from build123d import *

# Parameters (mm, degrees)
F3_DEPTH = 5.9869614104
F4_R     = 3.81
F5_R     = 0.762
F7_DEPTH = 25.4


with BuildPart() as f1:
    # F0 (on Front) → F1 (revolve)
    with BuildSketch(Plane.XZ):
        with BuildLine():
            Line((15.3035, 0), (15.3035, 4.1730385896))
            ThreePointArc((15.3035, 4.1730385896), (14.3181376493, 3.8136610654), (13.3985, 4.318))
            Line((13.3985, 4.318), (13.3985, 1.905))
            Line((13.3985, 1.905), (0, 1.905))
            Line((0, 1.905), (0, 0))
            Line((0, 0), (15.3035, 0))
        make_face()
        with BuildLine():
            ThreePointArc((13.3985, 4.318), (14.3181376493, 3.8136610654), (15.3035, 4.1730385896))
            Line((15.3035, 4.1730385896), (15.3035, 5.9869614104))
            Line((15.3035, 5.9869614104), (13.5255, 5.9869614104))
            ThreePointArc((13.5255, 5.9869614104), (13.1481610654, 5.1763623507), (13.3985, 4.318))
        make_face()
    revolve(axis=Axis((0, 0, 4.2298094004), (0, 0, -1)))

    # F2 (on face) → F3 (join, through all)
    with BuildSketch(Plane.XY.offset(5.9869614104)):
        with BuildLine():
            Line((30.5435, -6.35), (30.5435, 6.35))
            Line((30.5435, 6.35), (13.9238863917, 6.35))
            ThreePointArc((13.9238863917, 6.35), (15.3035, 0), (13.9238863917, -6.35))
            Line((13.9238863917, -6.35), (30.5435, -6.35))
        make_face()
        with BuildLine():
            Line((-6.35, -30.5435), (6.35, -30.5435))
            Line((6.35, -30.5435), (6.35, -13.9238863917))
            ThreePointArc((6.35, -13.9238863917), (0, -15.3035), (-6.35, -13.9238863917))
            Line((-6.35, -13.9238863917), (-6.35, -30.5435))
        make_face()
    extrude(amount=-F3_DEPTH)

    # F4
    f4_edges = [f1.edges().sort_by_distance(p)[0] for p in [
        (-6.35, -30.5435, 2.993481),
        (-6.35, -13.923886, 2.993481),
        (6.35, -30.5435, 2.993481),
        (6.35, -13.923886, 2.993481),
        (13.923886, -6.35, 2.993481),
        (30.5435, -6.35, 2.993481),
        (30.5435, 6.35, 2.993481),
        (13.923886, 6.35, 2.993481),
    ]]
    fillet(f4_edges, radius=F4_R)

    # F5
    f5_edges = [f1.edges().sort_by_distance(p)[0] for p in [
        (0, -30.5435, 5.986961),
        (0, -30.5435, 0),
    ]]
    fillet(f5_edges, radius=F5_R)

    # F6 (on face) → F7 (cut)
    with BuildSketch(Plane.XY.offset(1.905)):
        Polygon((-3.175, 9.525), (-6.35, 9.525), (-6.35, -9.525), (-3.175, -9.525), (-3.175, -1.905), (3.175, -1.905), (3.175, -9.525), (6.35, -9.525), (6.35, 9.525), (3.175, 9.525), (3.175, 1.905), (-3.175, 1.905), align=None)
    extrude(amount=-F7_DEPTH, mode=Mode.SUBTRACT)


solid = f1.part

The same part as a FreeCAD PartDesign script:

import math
import FreeCAD as App
import Part
import Sketcher
from FreeCAD import Vector
Q = App.Units.Quantity


def edges_at(feature, points):
    """Names of the edges that pass closest to the given points."""
    edges = feature.Shape.Edges
    near = lambda p: min(range(len(edges)), key=lambda i: edges[i].distToShape(Part.Vertex(*p))[0])
    return sorted({f"Edge{near(p) + 1}" for p in points})


def add_polygon(sketch, points):
    """Adds a closed chain of lines whose ends are joined by coincident constraints."""
    first, n = sketch.GeometryCount, len(points)
    for a, b in zip(points, points[1:] + points[:1]):
        sketch.addGeometry(Part.LineSegment(App.Vector(*a, 0), App.Vector(*b, 0)), False)
    for i in range(n):
        sketch.addConstraint(Sketcher.Constraint("Coincident", first + i, 2, first + (i + 1) % n, 1))

doc = App.newDocument("Part")
body = doc.addObject("PartDesign::Body", "Body")

# Sketch on XZ plane
sketch1 = body.newObject("Sketcher::SketchObject", "Sketch")
sketch1.AttachmentSupport = (doc.getObject("XZ_Plane"), [""])
sketch1.MapMode = "FlatFace"
sketch1.addGeometry([
    Part.LineSegment(Vector(15.3035, 0, 0), Vector(15.3035, 5.986961, 0)),  # 0
    Part.LineSegment(Vector(15.3035, 5.986961, 0), Vector(13.5255, 5.986961, 0)),  # 1
    Part.ArcOfCircle(Part.Circle(Vector(14.4145, 5.08, 0), Vector(0, 0, 1), 1.27), math.radians(134.427004), math.radians(216.869898)),  # 2
    Part.LineSegment(Vector(13.3985, 4.318, 0), Vector(13.3985, 1.905, 0)),  # 3
    Part.LineSegment(Vector(13.3985, 1.905, 0), Vector(0, 1.905, 0)),  # 4
    Part.LineSegment(Vector(0, 1.905, 0), Vector(0, 0, 0)),  # 5
    Part.LineSegment(Vector(0, 0, 0), Vector(15.3035, 0, 0)),  # 6
], False)
sketch1.addConstraint([
    Sketcher.Constraint("Coincident", 0, 2, 1, 1),
    Sketcher.Constraint("Coincident", 1, 2, 2, 1),
    Sketcher.Constraint("Coincident", 2, 2, 3, 1),
    Sketcher.Constraint("Coincident", 3, 2, 4, 1),
    Sketcher.Constraint("Coincident", 4, 2, 5, 1),
    Sketcher.Constraint("Coincident", 5, 2, 6, 1),
    Sketcher.Constraint("Coincident", 6, 2, 0, 1),
    Sketcher.Constraint("Vertical", 0),
    Sketcher.Constraint("Horizontal", 1),
    Sketcher.Constraint("Vertical", 3),
    Sketcher.Constraint("Horizontal", 4),
    Sketcher.Constraint("Vertical", 5),
    Sketcher.Constraint("Horizontal", 6),
    Sketcher.Constraint("Coincident", 5, 2, -1, 1),
    Sketcher.Constraint("Radius", 2, Q("0.05 in")),
    Sketcher.Constraint("DistanceX", 1, 2, 1, 1, Q("0.07 in")),
    Sketcher.Constraint("DistanceY", -1, 1, 2, 3, Q("0.2 in")),
    Sketcher.Constraint("DistanceY", 3, 2, 3, 1, Q("0.095 in")),
    Sketcher.Constraint("DistanceY", 5, 2, 5, 1, Q("0.075 in")),
    Sketcher.Constraint("DistanceX", 4, 2, 4, 1, Q("0.5275 in")),
    Sketcher.Constraint("DistanceX", 6, 1, 6, 2, Q("0.6025 in")),
])
revolution = body.newObject("PartDesign::Revolution", "Revolution")
revolution.Profile = sketch1
revolution.ReferenceAxis = (sketch1, ["V_Axis"])
revolution.Angle = 360

# Sketch on XY plane
sketch2 = body.newObject("Sketcher::SketchObject", "Sketch001")
sketch2.AttachmentSupport = (doc.getObject("XY_Plane"), [""])
sketch2.MapMode = "FlatFace"
sketch2.AttachmentOffset = App.Placement(Vector(0, 0, 5.986961), App.Rotation())
sketch2.addGeometry([
    Part.LineSegment(Vector(30.5435, -6.35, 0), Vector(30.5435, 6.35, 0)),  # 0
    Part.LineSegment(Vector(30.5435, 6.35, 0), Vector(13.923886, 6.35, 0)),  # 1
    Part.ArcOfCircle(Part.Circle(Vector(0, 0, 0), Vector(0, 0, 1), 15.3035), math.radians(-24.515397), math.radians(24.515397)),  # 2
    Part.LineSegment(Vector(13.923886, -6.35, 0), Vector(30.5435, -6.35, 0)),  # 3
    Part.LineSegment(Vector(-6.35, -30.5435, 0), Vector(6.35, -30.5435, 0)),  # 4
    Part.LineSegment(Vector(6.35, -30.5435, 0), Vector(6.35, -13.923886, 0)),  # 5
    Part.ArcOfCircle(Part.Circle(Vector(0, 0, 0), Vector(0, 0, 1), 15.3035), math.radians(-114.515397), math.radians(-65.484603)),  # 6
    Part.LineSegment(Vector(-6.35, -13.923886, 0), Vector(-6.35, -30.5435, 0)),  # 7
], False)
sketch2.addConstraint([
    Sketcher.Constraint("Coincident", 0, 2, 1, 1),
    Sketcher.Constraint("Coincident", 1, 2, 2, 2),
    Sketcher.Constraint("Coincident", 2, 1, 3, 1),
    Sketcher.Constraint("Coincident", 3, 2, 0, 1),
    Sketcher.Constraint("Coincident", 4, 2, 5, 1),
    Sketcher.Constraint("Coincident", 5, 2, 6, 2),
    Sketcher.Constraint("Coincident", 6, 1, 7, 1),
    Sketcher.Constraint("Coincident", 7, 2, 4, 1),
    Sketcher.Constraint("Vertical", 0),
    Sketcher.Constraint("Horizontal", 1),
    Sketcher.Constraint("Horizontal", 3),
    Sketcher.Constraint("Horizontal", 4),
    Sketcher.Constraint("Vertical", 5),
    Sketcher.Constraint("Vertical", 7),
    Sketcher.Constraint("Coincident", 2, 3, -1, 1),
    Sketcher.Constraint("Coincident", 6, 3, -1, 1),
    Sketcher.Constraint("Equal", 2, 6),
    Sketcher.Constraint("Horizontal", 5, 2, 6, 1),
    Sketcher.Constraint("Vertical", 1, 2, 2, 1),
    Sketcher.Constraint("Equal", 4, 0),
    Sketcher.Constraint("Equal", 3, 5),
    Sketcher.Constraint("DistanceX", 4, 1, 4, 2, Q("0.5 in")),
    Sketcher.Constraint("Radius", 2, Q("0.6025 in")),
    Sketcher.Constraint("DistanceX", -1, 1, 0, 2, Q("1.2025 in")),
])
pad1 = body.newObject("PartDesign::Pad", "Pad")
pad1.Profile = sketch2
pad1.Length = 5.986961
pad1.Reversed = True
doc.recompute()

fillet = body.newObject("PartDesign::Fillet", "Fillet")
fillet.Base = (pad1, edges_at(pad1, [
    (-6.35, -30.544, 2.993),
    (-6.35, -13.924, 2.993),
    (6.35, -30.544, 2.993),
    (6.35, -13.924, 2.993),
    (13.924, -6.35, 2.993),
    (30.544, -6.35, 2.993),
    (30.544, 6.35, 2.993),
    (13.924, 6.35, 2.993),
]))
fillet.Radius = Q("0.15 in")
doc.recompute()

fillet2 = body.newObject("PartDesign::Fillet", "Fillet001")
fillet2.Base = (fillet, edges_at(fillet, [(0, -30.544, 5.987), (0, -30.544, 0)]))
fillet2.Radius = Q("0.03 in")

# Sketch on XY plane
sketch3 = body.newObject("Sketcher::SketchObject", "Sketch002")
sketch3.AttachmentSupport = (doc.getObject("XY_Plane"), [""])
sketch3.MapMode = "FlatFace"
sketch3.AttachmentOffset = App.Placement(Vector(0, 0, 0.075 * 25.4), App.Rotation())
add_polygon(sketch3, [(-3.175, 9.525), (-6.35, 9.525), (-6.35, -9.525), (-3.175, -9.525), (-3.175, -1.905), (3.175, -1.905), (3.175, -9.525), (6.35, -9.525), (6.35, 9.525), (3.175, 9.525), (3.175, 1.905), (-3.175, 1.905)])  # lines 0-11
sketch3.addConstraint([
    Sketcher.Constraint("Horizontal", 0),
    Sketcher.Constraint("Vertical", 1),
    Sketcher.Constraint("Horizontal", 2),
    Sketcher.Constraint("Vertical", 3),
    Sketcher.Constraint("Horizontal", 4),
    Sketcher.Constraint("Vertical", 5),
    Sketcher.Constraint("Horizontal", 6),
    Sketcher.Constraint("Vertical", 7),
    Sketcher.Constraint("Horizontal", 8),
    Sketcher.Constraint("Vertical", 9),
    Sketcher.Constraint("Horizontal", 10),
    Sketcher.Constraint("Vertical", 11),
    Sketcher.Constraint("Symmetric", 0, 2, 6, 2, -1, 1),
    Sketcher.Constraint("Symmetric", 2, 2, 8, 2, -1, 1),
    Sketcher.Constraint("Symmetric", 4, 2, 10, 2, -1, 1),
    Sketcher.Constraint("Symmetric", 2, 2, 5, 2, -2),
    Sketcher.Constraint("DistanceY", 3, 1, 3, 2, Q("0.3 in")),
    Sketcher.Constraint("DistanceX", 4, 1, 4, 2, Q("0.25 in")),
    Sketcher.Constraint("DistanceY", 1, 2, 1, 1, Q("0.75 in")),
    Sketcher.Constraint("DistanceX", 1, 2, 6, 2, Q("0.5 in")),
])
pocket1 = body.newObject("PartDesign::Pocket", "Pocket")
pocket1.Profile = sketch3
pocket1.Length = Q("1 in")

doc.recompute()
